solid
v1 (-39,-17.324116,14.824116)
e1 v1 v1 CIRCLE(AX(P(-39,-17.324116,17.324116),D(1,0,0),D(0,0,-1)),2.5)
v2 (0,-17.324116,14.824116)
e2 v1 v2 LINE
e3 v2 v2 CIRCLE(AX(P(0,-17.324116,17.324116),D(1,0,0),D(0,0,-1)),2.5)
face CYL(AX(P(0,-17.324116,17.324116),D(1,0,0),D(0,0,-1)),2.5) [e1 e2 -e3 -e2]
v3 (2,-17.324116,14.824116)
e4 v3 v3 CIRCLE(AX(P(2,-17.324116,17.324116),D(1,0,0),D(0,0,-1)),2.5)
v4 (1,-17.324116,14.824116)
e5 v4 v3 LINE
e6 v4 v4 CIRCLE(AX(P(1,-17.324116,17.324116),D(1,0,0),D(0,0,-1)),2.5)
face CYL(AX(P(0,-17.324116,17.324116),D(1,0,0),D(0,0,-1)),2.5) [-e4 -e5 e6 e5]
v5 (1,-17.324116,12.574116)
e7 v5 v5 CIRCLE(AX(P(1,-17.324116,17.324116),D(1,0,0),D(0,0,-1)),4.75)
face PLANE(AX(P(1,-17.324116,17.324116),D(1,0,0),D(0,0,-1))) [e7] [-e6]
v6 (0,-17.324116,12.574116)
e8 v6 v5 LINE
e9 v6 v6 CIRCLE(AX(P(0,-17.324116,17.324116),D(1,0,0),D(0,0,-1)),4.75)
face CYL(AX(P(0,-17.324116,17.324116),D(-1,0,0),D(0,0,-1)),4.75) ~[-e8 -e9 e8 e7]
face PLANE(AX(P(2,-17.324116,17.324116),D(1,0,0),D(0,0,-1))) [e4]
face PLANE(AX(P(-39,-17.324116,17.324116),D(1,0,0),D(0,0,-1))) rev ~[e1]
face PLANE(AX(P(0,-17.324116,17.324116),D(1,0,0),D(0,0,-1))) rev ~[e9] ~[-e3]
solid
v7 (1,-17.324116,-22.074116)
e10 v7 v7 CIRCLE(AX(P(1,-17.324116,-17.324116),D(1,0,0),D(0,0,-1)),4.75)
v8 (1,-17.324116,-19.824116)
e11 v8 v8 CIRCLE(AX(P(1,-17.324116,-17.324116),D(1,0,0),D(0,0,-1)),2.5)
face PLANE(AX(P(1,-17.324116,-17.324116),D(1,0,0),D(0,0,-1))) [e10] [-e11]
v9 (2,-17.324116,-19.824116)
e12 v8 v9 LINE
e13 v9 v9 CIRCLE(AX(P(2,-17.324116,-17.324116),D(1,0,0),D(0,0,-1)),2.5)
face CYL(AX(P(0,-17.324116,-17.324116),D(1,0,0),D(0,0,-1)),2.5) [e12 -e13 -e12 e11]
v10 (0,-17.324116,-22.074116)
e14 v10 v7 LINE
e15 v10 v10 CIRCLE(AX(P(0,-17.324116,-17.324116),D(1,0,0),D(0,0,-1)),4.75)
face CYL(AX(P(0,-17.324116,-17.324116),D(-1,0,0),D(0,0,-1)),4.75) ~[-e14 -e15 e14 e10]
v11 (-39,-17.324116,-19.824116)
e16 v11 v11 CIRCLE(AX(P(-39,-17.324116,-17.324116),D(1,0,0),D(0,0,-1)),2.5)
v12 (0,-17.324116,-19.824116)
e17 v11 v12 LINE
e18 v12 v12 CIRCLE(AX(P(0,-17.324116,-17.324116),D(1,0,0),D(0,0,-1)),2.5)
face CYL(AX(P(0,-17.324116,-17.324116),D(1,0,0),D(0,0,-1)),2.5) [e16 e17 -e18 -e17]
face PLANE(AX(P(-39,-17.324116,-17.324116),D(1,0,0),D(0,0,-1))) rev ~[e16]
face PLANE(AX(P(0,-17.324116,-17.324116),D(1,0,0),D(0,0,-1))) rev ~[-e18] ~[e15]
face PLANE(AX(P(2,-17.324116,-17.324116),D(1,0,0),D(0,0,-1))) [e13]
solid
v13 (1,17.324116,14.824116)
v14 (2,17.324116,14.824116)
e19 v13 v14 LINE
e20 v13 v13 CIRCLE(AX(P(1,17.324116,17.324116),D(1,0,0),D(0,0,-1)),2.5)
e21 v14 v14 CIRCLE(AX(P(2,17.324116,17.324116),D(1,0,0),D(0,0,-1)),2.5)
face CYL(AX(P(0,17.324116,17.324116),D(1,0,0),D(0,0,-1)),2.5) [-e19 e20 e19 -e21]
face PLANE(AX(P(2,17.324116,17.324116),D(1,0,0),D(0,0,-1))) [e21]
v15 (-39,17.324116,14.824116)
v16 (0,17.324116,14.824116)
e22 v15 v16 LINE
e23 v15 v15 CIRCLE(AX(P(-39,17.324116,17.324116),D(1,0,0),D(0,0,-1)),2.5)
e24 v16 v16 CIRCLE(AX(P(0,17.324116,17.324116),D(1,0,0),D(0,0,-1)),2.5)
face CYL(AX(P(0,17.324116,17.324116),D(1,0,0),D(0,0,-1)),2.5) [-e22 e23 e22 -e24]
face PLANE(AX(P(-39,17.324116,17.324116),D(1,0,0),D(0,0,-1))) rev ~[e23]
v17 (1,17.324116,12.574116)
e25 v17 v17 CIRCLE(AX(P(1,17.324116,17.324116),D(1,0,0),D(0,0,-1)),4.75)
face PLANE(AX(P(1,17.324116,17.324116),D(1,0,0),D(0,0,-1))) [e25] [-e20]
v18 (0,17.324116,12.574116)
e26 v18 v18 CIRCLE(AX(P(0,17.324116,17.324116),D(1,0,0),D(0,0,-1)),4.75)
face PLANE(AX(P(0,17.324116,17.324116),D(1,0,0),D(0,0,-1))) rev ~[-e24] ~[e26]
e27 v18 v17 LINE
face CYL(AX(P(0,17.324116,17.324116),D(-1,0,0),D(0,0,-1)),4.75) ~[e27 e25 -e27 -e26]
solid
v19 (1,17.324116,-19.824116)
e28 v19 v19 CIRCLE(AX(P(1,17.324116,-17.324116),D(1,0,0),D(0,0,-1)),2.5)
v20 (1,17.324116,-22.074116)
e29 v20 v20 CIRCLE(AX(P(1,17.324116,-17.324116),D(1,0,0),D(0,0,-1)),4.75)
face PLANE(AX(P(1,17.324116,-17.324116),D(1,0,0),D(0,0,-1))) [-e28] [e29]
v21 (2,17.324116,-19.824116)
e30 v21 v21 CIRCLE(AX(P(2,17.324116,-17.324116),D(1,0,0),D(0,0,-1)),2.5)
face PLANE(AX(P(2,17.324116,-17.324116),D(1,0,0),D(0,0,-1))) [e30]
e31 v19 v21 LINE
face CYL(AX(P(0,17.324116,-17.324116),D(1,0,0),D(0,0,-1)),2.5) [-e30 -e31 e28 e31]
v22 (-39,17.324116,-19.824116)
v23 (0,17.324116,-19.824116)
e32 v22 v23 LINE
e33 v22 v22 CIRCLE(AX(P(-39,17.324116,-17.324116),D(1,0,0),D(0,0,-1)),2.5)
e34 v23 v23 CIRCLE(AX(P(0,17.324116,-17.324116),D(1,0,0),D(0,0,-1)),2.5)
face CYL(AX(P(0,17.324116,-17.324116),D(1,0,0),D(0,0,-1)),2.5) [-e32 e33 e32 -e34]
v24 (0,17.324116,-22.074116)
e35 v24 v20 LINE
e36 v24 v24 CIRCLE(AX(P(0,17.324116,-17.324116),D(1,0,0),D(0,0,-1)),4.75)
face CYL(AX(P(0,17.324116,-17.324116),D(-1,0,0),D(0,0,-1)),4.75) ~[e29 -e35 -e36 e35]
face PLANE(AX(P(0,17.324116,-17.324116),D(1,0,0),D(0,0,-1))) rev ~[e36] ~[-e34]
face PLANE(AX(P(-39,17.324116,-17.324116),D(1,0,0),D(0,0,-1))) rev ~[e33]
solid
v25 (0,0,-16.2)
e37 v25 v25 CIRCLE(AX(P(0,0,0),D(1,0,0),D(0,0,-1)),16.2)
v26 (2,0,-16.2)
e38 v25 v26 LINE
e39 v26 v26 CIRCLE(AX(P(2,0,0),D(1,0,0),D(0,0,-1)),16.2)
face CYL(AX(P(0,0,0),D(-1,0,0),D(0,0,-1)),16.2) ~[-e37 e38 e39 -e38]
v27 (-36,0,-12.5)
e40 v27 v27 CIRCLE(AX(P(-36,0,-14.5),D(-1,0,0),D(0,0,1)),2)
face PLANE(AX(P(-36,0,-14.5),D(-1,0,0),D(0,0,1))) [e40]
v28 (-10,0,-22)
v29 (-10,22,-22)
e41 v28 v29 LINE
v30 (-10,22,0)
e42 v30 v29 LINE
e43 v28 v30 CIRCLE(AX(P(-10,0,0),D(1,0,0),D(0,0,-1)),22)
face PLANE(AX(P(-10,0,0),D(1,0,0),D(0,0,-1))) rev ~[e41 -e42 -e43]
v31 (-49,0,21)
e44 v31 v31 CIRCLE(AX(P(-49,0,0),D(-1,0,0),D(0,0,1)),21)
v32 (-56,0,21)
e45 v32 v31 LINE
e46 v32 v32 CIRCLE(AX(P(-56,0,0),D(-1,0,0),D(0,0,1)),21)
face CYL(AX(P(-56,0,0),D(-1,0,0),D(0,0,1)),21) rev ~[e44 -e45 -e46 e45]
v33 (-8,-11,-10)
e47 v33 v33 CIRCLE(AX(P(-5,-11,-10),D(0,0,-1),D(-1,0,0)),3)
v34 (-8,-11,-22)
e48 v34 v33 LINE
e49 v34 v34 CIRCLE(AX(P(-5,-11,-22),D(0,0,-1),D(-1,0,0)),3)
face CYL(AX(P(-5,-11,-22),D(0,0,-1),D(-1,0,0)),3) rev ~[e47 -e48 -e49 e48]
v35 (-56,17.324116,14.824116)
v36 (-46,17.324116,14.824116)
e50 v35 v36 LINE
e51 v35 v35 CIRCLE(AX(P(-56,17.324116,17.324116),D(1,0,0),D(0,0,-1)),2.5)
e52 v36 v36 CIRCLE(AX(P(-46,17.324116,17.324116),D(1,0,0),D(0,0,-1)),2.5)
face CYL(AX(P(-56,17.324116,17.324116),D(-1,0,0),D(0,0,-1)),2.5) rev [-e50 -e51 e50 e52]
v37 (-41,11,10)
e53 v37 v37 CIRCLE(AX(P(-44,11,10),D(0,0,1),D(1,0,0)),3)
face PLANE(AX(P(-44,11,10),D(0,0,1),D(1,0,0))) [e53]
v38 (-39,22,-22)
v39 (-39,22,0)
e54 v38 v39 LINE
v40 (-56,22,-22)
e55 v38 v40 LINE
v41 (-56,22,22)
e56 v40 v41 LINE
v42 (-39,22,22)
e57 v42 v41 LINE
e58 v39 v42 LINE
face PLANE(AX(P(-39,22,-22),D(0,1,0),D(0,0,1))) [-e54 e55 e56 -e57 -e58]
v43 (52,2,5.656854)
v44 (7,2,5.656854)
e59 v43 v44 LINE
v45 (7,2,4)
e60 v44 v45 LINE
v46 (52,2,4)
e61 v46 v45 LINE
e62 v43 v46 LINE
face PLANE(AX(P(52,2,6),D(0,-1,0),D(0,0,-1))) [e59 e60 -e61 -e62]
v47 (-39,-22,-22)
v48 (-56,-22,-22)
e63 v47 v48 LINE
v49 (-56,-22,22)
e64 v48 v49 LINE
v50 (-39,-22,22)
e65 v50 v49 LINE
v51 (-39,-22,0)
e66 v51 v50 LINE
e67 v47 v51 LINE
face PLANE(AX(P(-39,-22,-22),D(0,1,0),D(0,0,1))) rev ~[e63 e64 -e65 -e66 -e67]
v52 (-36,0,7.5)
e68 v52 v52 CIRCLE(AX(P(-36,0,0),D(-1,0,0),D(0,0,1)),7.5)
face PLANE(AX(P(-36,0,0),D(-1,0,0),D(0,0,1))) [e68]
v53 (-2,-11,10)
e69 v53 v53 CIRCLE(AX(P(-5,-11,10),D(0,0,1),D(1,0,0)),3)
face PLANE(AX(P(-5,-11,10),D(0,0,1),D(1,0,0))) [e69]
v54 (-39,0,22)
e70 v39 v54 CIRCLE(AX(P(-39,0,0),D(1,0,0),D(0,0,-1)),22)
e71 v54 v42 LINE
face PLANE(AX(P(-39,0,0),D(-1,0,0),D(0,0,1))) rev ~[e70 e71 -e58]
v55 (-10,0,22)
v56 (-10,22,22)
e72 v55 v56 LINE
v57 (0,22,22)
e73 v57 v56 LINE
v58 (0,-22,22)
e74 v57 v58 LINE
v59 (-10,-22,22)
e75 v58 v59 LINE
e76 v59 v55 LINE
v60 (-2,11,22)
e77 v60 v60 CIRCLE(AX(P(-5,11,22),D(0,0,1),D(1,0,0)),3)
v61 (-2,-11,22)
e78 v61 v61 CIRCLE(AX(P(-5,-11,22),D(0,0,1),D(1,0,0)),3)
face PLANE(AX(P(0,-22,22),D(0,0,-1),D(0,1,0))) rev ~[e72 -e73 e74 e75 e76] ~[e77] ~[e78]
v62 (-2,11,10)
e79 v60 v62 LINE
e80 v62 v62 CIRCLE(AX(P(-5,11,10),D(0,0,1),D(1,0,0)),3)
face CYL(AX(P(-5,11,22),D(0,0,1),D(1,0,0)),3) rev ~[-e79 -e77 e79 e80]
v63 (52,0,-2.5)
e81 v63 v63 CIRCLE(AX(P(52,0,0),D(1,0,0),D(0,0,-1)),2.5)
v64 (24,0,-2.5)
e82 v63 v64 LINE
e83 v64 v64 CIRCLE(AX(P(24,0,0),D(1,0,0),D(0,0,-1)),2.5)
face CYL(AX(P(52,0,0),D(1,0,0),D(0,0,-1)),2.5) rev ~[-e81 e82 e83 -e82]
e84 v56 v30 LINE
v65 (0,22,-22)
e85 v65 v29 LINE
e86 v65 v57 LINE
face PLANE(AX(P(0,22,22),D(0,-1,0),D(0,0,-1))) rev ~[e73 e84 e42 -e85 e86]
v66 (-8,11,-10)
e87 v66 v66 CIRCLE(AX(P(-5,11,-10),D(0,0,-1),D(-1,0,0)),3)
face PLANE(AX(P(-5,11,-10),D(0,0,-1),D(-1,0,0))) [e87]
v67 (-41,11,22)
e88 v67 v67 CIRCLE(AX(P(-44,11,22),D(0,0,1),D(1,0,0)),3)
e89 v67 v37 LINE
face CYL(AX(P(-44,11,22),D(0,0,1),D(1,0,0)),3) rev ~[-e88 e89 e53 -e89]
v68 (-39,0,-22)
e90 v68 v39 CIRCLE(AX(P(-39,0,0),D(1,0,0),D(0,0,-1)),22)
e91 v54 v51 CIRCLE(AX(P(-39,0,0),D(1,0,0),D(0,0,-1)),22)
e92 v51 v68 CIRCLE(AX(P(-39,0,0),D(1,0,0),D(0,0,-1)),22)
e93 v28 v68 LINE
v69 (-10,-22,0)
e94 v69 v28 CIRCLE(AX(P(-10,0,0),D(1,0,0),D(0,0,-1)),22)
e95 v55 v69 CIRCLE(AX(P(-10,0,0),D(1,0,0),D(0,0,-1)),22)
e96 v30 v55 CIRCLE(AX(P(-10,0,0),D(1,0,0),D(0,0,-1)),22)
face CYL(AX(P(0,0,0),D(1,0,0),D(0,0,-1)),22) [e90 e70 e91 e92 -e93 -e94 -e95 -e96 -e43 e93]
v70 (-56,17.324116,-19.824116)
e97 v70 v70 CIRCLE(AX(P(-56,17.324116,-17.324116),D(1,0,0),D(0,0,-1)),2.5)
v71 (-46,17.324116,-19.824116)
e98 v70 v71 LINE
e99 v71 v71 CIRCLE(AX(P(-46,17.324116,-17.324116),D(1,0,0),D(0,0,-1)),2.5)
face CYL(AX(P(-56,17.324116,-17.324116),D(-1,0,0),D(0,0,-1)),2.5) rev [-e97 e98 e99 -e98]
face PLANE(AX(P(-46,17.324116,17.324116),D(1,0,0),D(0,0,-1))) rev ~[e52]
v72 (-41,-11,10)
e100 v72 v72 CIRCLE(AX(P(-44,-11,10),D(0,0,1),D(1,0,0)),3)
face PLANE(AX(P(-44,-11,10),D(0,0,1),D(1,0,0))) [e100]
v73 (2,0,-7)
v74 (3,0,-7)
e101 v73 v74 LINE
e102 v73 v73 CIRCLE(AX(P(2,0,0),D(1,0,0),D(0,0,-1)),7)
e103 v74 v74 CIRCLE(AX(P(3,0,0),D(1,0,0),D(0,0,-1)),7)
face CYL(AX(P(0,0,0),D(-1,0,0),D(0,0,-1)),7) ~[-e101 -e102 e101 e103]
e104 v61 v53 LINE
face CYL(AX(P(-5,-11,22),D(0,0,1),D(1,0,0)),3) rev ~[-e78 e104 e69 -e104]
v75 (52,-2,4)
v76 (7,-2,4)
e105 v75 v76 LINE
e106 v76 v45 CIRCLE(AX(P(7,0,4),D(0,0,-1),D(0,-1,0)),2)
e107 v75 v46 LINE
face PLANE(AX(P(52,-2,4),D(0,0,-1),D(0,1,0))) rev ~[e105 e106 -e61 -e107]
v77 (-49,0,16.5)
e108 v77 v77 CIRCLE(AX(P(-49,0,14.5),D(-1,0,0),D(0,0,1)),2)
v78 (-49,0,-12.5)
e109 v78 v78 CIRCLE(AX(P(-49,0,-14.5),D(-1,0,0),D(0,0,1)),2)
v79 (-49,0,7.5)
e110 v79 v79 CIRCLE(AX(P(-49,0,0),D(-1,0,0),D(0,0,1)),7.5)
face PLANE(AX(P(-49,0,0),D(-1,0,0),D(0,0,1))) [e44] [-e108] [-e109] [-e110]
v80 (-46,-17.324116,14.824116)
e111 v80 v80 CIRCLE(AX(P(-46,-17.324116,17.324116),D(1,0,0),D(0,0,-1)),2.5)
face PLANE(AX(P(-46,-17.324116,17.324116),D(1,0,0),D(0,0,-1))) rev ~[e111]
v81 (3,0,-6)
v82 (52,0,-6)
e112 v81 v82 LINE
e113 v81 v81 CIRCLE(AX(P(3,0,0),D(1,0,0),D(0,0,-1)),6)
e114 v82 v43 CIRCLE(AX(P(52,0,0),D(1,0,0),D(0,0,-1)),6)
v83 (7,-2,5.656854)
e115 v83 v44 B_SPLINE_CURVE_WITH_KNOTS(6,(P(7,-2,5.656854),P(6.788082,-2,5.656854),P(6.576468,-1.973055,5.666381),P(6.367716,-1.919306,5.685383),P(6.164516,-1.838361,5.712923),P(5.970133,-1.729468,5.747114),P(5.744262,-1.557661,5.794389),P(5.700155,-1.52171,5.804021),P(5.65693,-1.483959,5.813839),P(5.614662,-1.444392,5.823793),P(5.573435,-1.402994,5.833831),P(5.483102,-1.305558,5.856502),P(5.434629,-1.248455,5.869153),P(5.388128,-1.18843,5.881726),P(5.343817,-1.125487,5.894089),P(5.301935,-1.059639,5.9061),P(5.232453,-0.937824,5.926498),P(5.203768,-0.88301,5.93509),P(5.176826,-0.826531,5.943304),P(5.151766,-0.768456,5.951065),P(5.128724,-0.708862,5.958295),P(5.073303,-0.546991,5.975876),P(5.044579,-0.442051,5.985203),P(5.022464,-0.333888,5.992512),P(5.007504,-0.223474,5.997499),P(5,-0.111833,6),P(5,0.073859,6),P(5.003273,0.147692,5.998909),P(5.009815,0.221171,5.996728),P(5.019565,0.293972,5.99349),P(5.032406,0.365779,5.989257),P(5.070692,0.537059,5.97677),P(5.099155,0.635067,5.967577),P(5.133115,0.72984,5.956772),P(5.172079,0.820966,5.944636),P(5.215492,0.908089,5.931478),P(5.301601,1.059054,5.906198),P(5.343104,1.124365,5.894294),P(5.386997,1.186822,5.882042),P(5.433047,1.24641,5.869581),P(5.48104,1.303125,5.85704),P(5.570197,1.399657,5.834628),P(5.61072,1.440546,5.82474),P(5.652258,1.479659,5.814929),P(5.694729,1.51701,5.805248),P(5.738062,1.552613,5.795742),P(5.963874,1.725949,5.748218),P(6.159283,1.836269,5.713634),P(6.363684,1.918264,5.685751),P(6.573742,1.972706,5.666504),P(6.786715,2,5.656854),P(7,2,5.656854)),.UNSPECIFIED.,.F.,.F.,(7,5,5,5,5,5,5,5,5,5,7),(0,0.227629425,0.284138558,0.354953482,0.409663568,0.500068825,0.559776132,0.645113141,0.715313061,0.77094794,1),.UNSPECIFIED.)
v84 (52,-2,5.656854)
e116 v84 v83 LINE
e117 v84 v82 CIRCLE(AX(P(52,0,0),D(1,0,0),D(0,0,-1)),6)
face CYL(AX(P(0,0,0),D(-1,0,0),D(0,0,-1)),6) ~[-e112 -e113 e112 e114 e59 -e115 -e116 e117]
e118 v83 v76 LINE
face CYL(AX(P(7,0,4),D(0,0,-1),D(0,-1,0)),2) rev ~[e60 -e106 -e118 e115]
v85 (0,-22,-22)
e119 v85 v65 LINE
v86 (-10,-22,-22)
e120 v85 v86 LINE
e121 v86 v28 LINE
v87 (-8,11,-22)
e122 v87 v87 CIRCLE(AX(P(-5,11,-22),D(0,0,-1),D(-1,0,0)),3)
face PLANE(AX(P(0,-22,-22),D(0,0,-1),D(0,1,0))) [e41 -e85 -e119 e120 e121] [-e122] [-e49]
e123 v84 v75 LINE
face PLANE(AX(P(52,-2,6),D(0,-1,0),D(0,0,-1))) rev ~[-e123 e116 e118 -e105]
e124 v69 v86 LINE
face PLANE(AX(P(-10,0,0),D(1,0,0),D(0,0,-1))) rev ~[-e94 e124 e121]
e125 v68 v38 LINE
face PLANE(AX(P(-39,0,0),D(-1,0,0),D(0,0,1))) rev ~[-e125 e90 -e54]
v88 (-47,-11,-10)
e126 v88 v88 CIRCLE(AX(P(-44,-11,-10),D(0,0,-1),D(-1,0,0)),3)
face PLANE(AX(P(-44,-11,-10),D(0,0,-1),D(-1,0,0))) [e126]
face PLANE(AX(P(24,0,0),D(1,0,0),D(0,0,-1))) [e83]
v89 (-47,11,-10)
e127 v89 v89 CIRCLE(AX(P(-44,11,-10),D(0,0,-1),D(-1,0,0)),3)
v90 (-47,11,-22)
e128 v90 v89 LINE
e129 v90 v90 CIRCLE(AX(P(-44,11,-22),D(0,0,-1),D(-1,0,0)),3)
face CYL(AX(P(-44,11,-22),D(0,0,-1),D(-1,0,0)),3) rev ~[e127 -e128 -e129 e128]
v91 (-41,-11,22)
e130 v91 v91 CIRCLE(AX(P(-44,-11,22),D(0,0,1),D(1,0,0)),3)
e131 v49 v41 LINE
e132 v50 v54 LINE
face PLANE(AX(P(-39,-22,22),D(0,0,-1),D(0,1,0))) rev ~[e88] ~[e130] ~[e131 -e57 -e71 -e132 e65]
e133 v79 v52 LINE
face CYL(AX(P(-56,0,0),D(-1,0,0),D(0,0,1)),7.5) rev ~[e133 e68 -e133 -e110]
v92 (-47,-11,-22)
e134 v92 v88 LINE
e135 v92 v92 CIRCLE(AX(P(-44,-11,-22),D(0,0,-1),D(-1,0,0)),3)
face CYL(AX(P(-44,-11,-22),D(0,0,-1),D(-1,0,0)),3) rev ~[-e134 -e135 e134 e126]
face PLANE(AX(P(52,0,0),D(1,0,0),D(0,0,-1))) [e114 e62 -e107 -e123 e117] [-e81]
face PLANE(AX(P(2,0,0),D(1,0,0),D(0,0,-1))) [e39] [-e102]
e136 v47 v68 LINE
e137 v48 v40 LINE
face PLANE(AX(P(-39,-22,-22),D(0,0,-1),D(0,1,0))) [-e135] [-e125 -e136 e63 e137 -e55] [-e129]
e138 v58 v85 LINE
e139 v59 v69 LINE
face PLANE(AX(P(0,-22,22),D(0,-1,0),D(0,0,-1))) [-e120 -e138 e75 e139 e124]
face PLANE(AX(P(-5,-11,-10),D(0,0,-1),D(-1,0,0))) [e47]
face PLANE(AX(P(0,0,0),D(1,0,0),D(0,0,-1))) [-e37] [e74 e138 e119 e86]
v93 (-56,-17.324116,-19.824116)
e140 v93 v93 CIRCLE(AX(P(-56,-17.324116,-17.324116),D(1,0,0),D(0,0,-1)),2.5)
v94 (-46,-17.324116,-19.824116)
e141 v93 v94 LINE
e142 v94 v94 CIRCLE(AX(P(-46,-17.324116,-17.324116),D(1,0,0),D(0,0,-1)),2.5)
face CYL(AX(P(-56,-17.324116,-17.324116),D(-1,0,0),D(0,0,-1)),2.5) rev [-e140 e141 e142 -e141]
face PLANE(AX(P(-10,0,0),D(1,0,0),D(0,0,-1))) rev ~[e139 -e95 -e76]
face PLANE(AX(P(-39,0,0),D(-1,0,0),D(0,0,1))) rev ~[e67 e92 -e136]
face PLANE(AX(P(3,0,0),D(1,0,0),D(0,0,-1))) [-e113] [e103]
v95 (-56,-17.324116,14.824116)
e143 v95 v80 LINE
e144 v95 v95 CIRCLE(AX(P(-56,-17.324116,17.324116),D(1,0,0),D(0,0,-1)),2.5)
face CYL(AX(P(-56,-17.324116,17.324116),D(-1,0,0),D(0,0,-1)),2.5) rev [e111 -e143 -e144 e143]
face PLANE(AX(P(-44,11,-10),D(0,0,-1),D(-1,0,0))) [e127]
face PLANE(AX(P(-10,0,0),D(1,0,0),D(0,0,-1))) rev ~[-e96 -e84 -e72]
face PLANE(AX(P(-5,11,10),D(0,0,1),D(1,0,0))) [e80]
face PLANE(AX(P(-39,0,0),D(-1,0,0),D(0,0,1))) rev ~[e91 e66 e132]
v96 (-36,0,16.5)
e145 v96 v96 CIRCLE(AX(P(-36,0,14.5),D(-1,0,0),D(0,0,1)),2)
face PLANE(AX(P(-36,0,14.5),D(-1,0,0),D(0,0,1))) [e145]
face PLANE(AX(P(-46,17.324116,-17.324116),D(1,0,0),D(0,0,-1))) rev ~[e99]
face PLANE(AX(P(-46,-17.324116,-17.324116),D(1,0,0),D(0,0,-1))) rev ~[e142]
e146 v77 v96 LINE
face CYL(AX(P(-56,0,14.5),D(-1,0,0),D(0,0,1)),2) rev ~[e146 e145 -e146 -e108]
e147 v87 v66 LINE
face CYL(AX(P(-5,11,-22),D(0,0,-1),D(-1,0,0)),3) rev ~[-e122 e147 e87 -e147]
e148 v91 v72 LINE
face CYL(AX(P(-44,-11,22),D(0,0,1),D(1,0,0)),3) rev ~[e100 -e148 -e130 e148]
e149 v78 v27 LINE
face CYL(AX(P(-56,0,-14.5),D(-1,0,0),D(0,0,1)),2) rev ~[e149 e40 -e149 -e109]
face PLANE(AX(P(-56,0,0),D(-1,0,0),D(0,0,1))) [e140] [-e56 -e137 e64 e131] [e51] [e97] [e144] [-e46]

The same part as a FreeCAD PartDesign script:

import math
import FreeCAD as App
import Part
import Sketcher

V = App.Vector
Q = App.Units.Quantity

doc = App.newDocument("Part")
body = doc.addObject("PartDesign::Body", "Body")

# Sketch on YZ plane
sketch1 = body.newObject("Sketcher::SketchObject", "Sketch")
sketch1.AttachmentSupport = (doc.getObject("YZ_Plane"), [""])
sketch1.MapMode = "FlatFace"
sketch1.addGeometry([
    Part.LineSegment(V(22, 22, 0), V(-22, 22, 0)),
    Part.LineSegment(V(-22, 22, 0), V(-22, -22, 0)),
    Part.LineSegment(V(-22, -22, 0), V(22, -22, 0)),
    Part.LineSegment(V(22, -22, 0), V(22, 22, 0)),
], False)
sketch1.addConstraint([
    Sketcher.Constraint("Coincident", 0, 2, 1, 1),
    Sketcher.Constraint("Coincident", 1, 2, 2, 1),
    Sketcher.Constraint("Coincident", 2, 2, 3, 1),
    Sketcher.Constraint("Coincident", 3, 2, 0, 1),
    Sketcher.Constraint("Horizontal", 0),
    Sketcher.Constraint("Vertical", 1),
    Sketcher.Constraint("Horizontal", 2),
    Sketcher.Constraint("Vertical", 3),
    Sketcher.Constraint("Symmetric", 0, 2, 2, 2, -1, 1),
    Sketcher.Constraint("Equal", 2, 1),
    Sketcher.Constraint("DistanceX", 0, 2, 0, 1, Q("44 mm")),
])
pad1 = body.newObject("PartDesign::Pad", "Pad")
pad1.Profile = sketch1
pad1.Length = 10
pad1.Reversed = True

# Sketch on YZ plane
sketch2 = body.newObject("Sketcher::SketchObject", "Sketch001")
sketch2.AttachmentSupport = (doc.getObject("YZ_Plane"), [""])
sketch2.MapMode = "FlatFace"
sketch2.addGeometry(Part.Circle(V(0, 0, 0), V(0, 0, 1), 22), False)
sketch2.addConstraint([
    Sketcher.Constraint("Coincident", 0, 3, -1, 1),
    Sketcher.Constraint("Diameter", 0, Q("44 mm")),
])
pad2 = body.newObject("PartDesign::Pad", "Pad001")
pad2.Profile = sketch2
pad2.Length = 39
pad2.Reversed = True

# Sketch on YZ plane
sketch3 = body.newObject("Sketcher::SketchObject", "Sketch002")
sketch3.AttachmentSupport = (doc.getObject("YZ_Plane"), [""])
sketch3.MapMode = "FlatFace"
sketch3.addGeometry(Part.Circle(V(0, 0, 0), V(0, 0, 1), 6), False)
sketch3.addConstraint([
    Sketcher.Constraint("Coincident", 0, 3, -1, 1),
    Sketcher.Constraint("Diameter", 0, Q("12 mm")),
])
pad3 = body.newObject("PartDesign::Pad", "Pad002")
pad3.Profile = sketch3
pad3.Length = 52

# Sketch on YZ plane
sketch4 = body.newObject("Sketcher::SketchObject", "Sketch003")
sketch4.AttachmentSupport = (doc.getObject("YZ_Plane"), [""])
sketch4.MapMode = "FlatFace"
sketch4.addGeometry([
    Part.Circle(V(0, 0, 0), V(0, 0, 1), 7),
    Part.Circle(V(0, 0, 0), V(0, 0, 1), 6),
], False)
sketch4.addConstraint([
    Sketcher.Constraint("Coincident", 0, 3, -1, 1),
    Sketcher.Constraint("Coincident", 1, 3, -1, 1),
    Sketcher.Constraint("Diameter", 0, Q("14 mm")),
    Sketcher.Constraint("Diameter", 1, Q("12 mm")),
])
pad4 = body.newObject("PartDesign::Pad", "Pad003")
pad4.Profile = sketch4
pad4.Length = 3

# Sketch on YZ plane
sketch5 = body.newObject("Sketcher::SketchObject", "Sketch004")
sketch5.AttachmentSupport = (doc.getObject("YZ_Plane"), [""])
sketch5.MapMode = "FlatFace"
sketch5.addGeometry([
    Part.Circle(V(0, 0, 0), V(0, 0, 1), 16),
    Part.Circle(V(0, 0, 0), V(0, 0, 1), 7),
], False)
sketch5.addConstraint([
    Sketcher.Constraint("Coincident", 0, 3, -1, 1),
    Sketcher.Constraint("Coincident", 1, 3, -1, 1),
    Sketcher.Constraint("Diameter", 1, Q("14 mm")),
    Sketcher.Constraint("Diameter", 0, Q("32.4 mm")),
])
pad5 = body.newObject("PartDesign::Pad", "Pad004")
pad5.Profile = sketch5
pad5.Length = 2

# Sketch on YZ plane
sketch6 = body.newObject("Sketcher::SketchObject", "Sketch005")
sketch6.AttachmentSupport = (doc.getObject("YZ_Plane"), [""])
sketch6.MapMode = "FlatFace"
sketch6.AttachmentOffset = App.Placement(V(0, 0, -39), App.Rotation())
sketch6.addGeometry([
    Part.LineSegment(V(22, -22, 0), V(-22, -22, 0)),
    Part.LineSegment(V(-22, -22, 0), V(-22, 22, 0)),
    Part.LineSegment(V(-22, 22, 0), V(22, 22, 0)),
    Part.LineSegment(V(22, 22, 0), V(22, -22, 0)),
], False)
sketch6.addConstraint([
    Sketcher.Constraint("Coincident", 0, 2, 1, 1),
    Sketcher.Constraint("Coincident", 1, 2, 2, 1),
    Sketcher.Constraint("Coincident", 2, 2, 3, 1),
    Sketcher.Constraint("Coincident", 3, 2, 0, 1),
    Sketcher.Constraint("Horizontal", 0),
    Sketcher.Constraint("Vertical", 1),
    Sketcher.Constraint("Horizontal", 2),
    Sketcher.Constraint("Vertical", 3),
    Sketcher.Constraint("Symmetric", 0, 2, 2, 2, -1, 1),
    Sketcher.Constraint("Equal", 2, 1),
    Sketcher.Constraint("DistanceX", 0, 2, 0, 1, Q("44 mm")),
])
pad6 = body.newObject("PartDesign::Pad", "Pad005")
pad6.Profile = sketch6
pad6.Length = 17
pad6.Reversed = True

# Sketch on XY plane
sketch7 = body.newObject("Sketcher::SketchObject", "Sketch006")
sketch7.AttachmentSupport = (doc.getObject("XY_Plane"), [""])
sketch7.MapMode = "FlatFace"
sketch7.AttachmentOffset = App.Placement(V(0, 0, 22), App.Rotation())
sketch7.addGeometry([
    Part.Circle(V(-44, 11, 0), V(0, 0, 1), 3),
    Part.Circle(V(-44, -11, 0), V(0, 0, 1), 3),
], False)
sketch7.addConstraint([
    Sketcher.Constraint("Equal", 0, 1),
    Sketcher.Constraint("Symmetric", 0, 3, 1, 3, -1),
    Sketcher.Constraint("Diameter", 0, Q("6 mm")),
    Sketcher.Constraint("DistanceX", 0, 3, -1, 1, Q("44 mm")),
    Sketcher.Constraint("DistanceY", -1, 1, 0, 3, Q("11 mm")),
])
pocket1 = body.newObject("PartDesign::Pocket", "Pocket")
pocket1.Profile = sketch7
pocket1.Length = 12

# Sketch on XY plane
sketch8 = body.newObject("Sketcher::SketchObject", "Sketch007")
sketch8.AttachmentSupport = (doc.getObject("XY_Plane"), [""])
sketch8.MapMode = "FlatFace"
sketch8.AttachmentOffset = App.Placement(V(0, 0, 22), App.Rotation())
sketch8.addGeometry([
    Part.Circle(V(-5, 11, 0), V(0, 0, 1), 3),
    Part.Circle(V(-5, -11, 0), V(0, 0, 1), 3),
], False)
sketch8.addConstraint([
    Sketcher.Constraint("Equal", 0, 1),
    Sketcher.Constraint("Symmetric", 0, 3, 1, 3, -1),
    Sketcher.Constraint("Diameter", 0, Q("6 mm")),
    Sketcher.Constraint("DistanceX", 0, 3, -1, 1, Q("5 mm")),
    Sketcher.Constraint("DistanceY", -1, 1, 0, 3, Q("11 mm")),
])
pocket2 = body.newObject("PartDesign::Pocket", "Pocket001")
pocket2.Profile = sketch8
pocket2.Length = 12

# Sketch on YZ plane
sketch9 = body.newObject("Sketcher::SketchObject", "Sketch008")
sketch9.AttachmentSupport = (doc.getObject("YZ_Plane"), [""])
sketch9.MapMode = "FlatFace"
sketch9.AttachmentOffset = App.Placement(V(0, 0, 52), App.Rotation())
sketch9.addGeometry([
    Part.LineSegment(V(2, 6, 0), V(-2, 6, 0)),
    Part.LineSegment(V(-2, 6, 0), V(-2, 4, 0)),
    Part.LineSegment(V(-2, 4, 0), V(2, 4, 0)),
    Part.LineSegment(V(2, 4, 0), V(2, 6, 0)),
], False)
sketch9.addConstraint([
    Sketcher.Constraint("Coincident", 0, 2, 1, 1),
    Sketcher.Constraint("Coincident", 1, 2, 2, 1),
    Sketcher.Constraint("Coincident", 2, 2, 3, 1),
    Sketcher.Constraint("Coincident", 3, 2, 0, 1),
    Sketcher.Constraint("Horizontal", 0),
    Sketcher.Constraint("Vertical", 1),
    Sketcher.Constraint("Horizontal", 2),
    Sketcher.Constraint("Vertical", 3),
    Sketcher.Constraint("DistanceX", 0, 2, 0, 1, Q("4 mm")),
    Sketcher.Constraint("DistanceY", 1, 2, 1, 1, Q("2 mm")),
    Sketcher.Constraint("DistanceX", 0, 2, -1, 1, Q("2 mm")),
    Sketcher.Constraint("DistanceY", -1, 1, 0, 2, Q("6 mm")),
])
pocket3 = body.newObject("PartDesign::Pocket", "Pocket002")
pocket3.Profile = sketch9
pocket3.Length = 45

# Sketch on YZ plane
sketch10 = body.newObject("Sketcher::SketchObject", "Sketch009")
sketch10.AttachmentSupport = (doc.getObject("YZ_Plane"), [""])
sketch10.MapMode = "FlatFace"
sketch10.AttachmentOffset = App.Placement(V(0, 0, 52), App.Rotation())
sketch10.addGeometry(Part.Circle(V(0, 0, 0), V(0, 0, 1), 2.5), False)
sketch10.addConstraint([
    Sketcher.Constraint("Coincident", 0, 3, -1, 1),
    Sketcher.Constraint("Diameter", 0, Q("5 mm")),
])
pocket4 = body.newObject("PartDesign::Pocket", "Pocket003")
pocket4.Profile = sketch10
pocket4.Length = 28

# Sketch on XY plane
sketch11 = body.newObject("Sketcher::SketchObject", "Sketch010")
sketch11.AttachmentSupport = (doc.getObject("XY_Plane"), [""])
sketch11.MapMode = "FlatFace"
sketch11.AttachmentOffset = App.Placement(V(0, 0, 4), App.Rotation())
sketch11.addGeometry([
    Part.LineSegment(V(7, -2, 0), V(7, 2, 0)),
    Part.ArcOfCircle(Part.Circle(V(7, 0, 0), V(0, 0, 1), 2), math.radians(90), math.radians(270)),
], False)
sketch11.addConstraint([
    Sketcher.Constraint("Coincident", 0, 1, 1, 2),
    Sketcher.Constraint("Coincident", 1, 1, 0, 2),
    Sketcher.Constraint("Vertical", 0),
    Sketcher.Constraint("PointOnObject", 1, 3, -1),
    Sketcher.Constraint("Vertical", 1, 3, 0, 1),
    Sketcher.Constraint("Radius", 1, Q("2 mm")),
    Sketcher.Constraint("DistanceX", -1, 1, 1, 3, Q("7 mm")),
])
pocket5 = body.newObject("PartDesign::Pocket", "Pocket004")
pocket5.Profile = sketch11
pocket5.Length = 28
pocket5.Reversed = True

# Sketch on XY plane
sketch12 = body.newObject("Sketcher::SketchObject", "Sketch011")
sketch12.AttachmentSupport = (doc.getObject("XY_Plane"), [""])
sketch12.MapMode = "FlatFace"
sketch12.AttachmentOffset = App.Placement(V(0, 0, -22), App.Rotation())
sketch12.addGeometry([
    Part.Circle(V(-5, 11, 0), V(0, 0, 1), 3),
    Part.Circle(V(-5, -11, 0), V(0, 0, 1), 3),
], False)
sketch12.addConstraint([
    Sketcher.Constraint("Equal", 0, 1),
    Sketcher.Constraint("Symmetric", 0, 3, 1, 3, -1),
    Sketcher.Constraint("Diameter", 0, Q("6 mm")),
    Sketcher.Constraint("DistanceX", 0, 3, -1, 1, Q("5 mm")),
    Sketcher.Constraint("DistanceY", -1, 1, 0, 3, Q("11 mm")),
])
pocket6 = body.newObject("PartDesign::Pocket", "Pocket005")
pocket6.Profile = sketch12
pocket6.Length = 12
pocket6.Reversed = True

# Sketch on XY plane
sketch13 = body.newObject("Sketcher::SketchObject", "Sketch012")
sketch13.AttachmentSupport = (doc.getObject("XY_Plane"), [""])
sketch13.MapMode = "FlatFace"
sketch13.AttachmentOffset = App.Placement(V(0, 0, -22), App.Rotation())
sketch13.addGeometry([
    Part.Circle(V(-44, 11, 0), V(0, 0, 1), 3),
    Part.Circle(V(-44, -11, 0), V(0, 0, 1), 3),
], False)
sketch13.addConstraint([
    Sketcher.Constraint("Equal", 0, 1),
    Sketcher.Constraint("Symmetric", 0, 3, 1, 3, -1),
    Sketcher.Constraint("Diameter", 0, Q("6 mm")),
    Sketcher.Constraint("DistanceX", 0, 3, -1, 1, Q("44 mm")),
    Sketcher.Constraint("DistanceY", -1, 1, 0, 3, Q("11 mm")),
])
pocket7 = body.newObject("PartDesign::Pocket", "Pocket006")
pocket7.Profile = sketch13
pocket7.Length = 12
pocket7.Reversed = True

# Sketch on YZ plane
sketch14 = body.newObject("Sketcher::SketchObject", "Sketch013")
sketch14.AttachmentSupport = (doc.getObject("YZ_Plane"), [""])
sketch14.MapMode = "FlatFace"
sketch14.AttachmentOffset = App.Placement(V(0, 0, -56), App.Rotation())
sketch14.addGeometry([
    Part.Circle(V(17.3, 17.3, 0), V(0, 0, 1), 2.5),
    Part.Circle(V(-17.3, 17.3, 0), V(0, 0, 1), 2.5),
    Part.Circle(V(17.3, -17.3, 0), V(0, 0, 1), 2.5),
    Part.Circle(V(-17.3, -17.3, 0), V(0, 0, 1), 2.5),
], False)
sketch14.addConstraint([
    Sketcher.Constraint("Equal", 0, 1),
    Sketcher.Constraint("Equal", 1, 2),
    Sketcher.Constraint("Equal", 2, 3),
    Sketcher.Constraint("Symmetric", 1, 3, 2, 3, -1, 1),
    Sketcher.Constraint("Symmetric", 0, 3, 3, 3, -1, 1),
    Sketcher.Constraint("Symmetric", 0, 3, 1, 3, -2),
    Sketcher.Constraint("Diameter", 0, Q("5 mm")),
    Sketcher.Constraint("DistanceX", -1, 1, 0, 3, Q("17.324116 mm")),
    Sketcher.Constraint("DistanceY", -1, 1, 0, 3, Q("17.324116 mm")),
])
pocket8 = body.newObject("PartDesign::Pocket", "Pocket007")
pocket8.Profile = sketch14
pocket8.Length = 10
pocket8.Reversed = True

# Sketch on YZ plane
sketch15 = body.newObject("Sketcher::SketchObject", "Sketch014")
sketch15.AttachmentSupport = (doc.getObject("YZ_Plane"), [""])
sketch15.MapMode = "FlatFace"
sketch15.AttachmentOffset = App.Placement(V(0, 0, -56), App.Rotation())
sketch15.addGeometry(Part.Circle(V(0, 0, 0), V(0, 0, 1), 21), False)
sketch15.addConstraint([
    Sketcher.Constraint("Coincident", 0, 3, -1, 1),
    Sketcher.Constraint("Diameter", 0, Q("42 mm")),
])
pocket9 = body.newObject("PartDesign::Pocket", "Pocket008")
pocket9.Profile = sketch15
pocket9.Length = 7
pocket9.Reversed = True

# Sketch on YZ plane
sketch16 = body.newObject("Sketcher::SketchObject", "Sketch015")
sketch16.AttachmentSupport = (doc.getObject("YZ_Plane"), [""])
sketch16.MapMode = "FlatFace"
sketch16.AttachmentOffset = App.Placement(V(0, 0, -56), App.Rotation())
sketch16.addGeometry([
    Part.Circle(V(0, 0, 0), V(0, 0, 1), 7.5),
    Part.Circle(V(0, -14.5, 0), V(0, 0, 1), 2),
    Part.Circle(V(0, 14.5, 0), V(0, 0, 1), 2),
], False)
sketch16.addConstraint([
    Sketcher.Constraint("Coincident", 0, 3, -1, 1),
    Sketcher.Constraint("Equal", 1, 2),
    Sketcher.Constraint("Symmetric", 1, 3, 2, 3, -1, 1),
    Sketcher.Constraint("PointOnObject", 1, 3, -2),
    Sketcher.Constraint("Diameter", 0, Q("15 mm")),
    Sketcher.Constraint("Diameter", 1, Q("4 mm")),
    Sketcher.Constraint("DistanceY", 1, 3, 2, 3, Q("29 mm")),
])
pocket10 = body.newObject("PartDesign::Pocket", "Pocket009")
pocket10.Profile = sketch16
pocket10.Length = 20
pocket10.Reversed = True
body2 = doc.addObject("PartDesign::Body", "Body001")

# Sketch on YZ plane
sketch17 = body2.newObject("Sketcher::SketchObject", "Sketch016")
sketch17.AttachmentSupport = (doc.getObject("YZ_Plane001"), [""])
sketch17.MapMode = "FlatFace"
sketch17.addGeometry(Part.Circle(V(17.3, 17.3, 0), V(0, 0, 1), 2.5), False)
sketch17.addConstraint([
    Sketcher.Constraint("Diameter", 0, Q("5 mm")),
    Sketcher.Constraint("DistanceX", -1, 1, 0, 3, Q("17.324116 mm")),
    Sketcher.Constraint("DistanceY", -1, 1, 0, 3, Q("17.324116 mm")),
])
pad7 = body2.newObject("PartDesign::Pad", "Pad006")
pad7.Profile = sketch17
pad7.Type = "TwoLengths"
pad7.Length = 2
pad7.Length2 = 39
body3 = doc.addObject("PartDesign::Body", "Body002")

# Sketch on YZ plane
sketch18 = body3.newObject("Sketcher::SketchObject", "Sketch017")
sketch18.AttachmentSupport = (doc.getObject("YZ_Plane002"), [""])
sketch18.MapMode = "FlatFace"
sketch18.addGeometry(Part.Circle(V(-17.3, -17.3, 0), V(0, 0, 1), 2.5), False)
sketch18.addConstraint([
    Sketcher.Constraint("Diameter", 0, Q("5 mm")),
    Sketcher.Constraint("DistanceX", 0, 3, -1, 1, Q("17.324116 mm")),
    Sketcher.Constraint("DistanceY", 0, 3, -1, 1, Q("17.324116 mm")),
])
pad8 = body3.newObject("PartDesign::Pad", "Pad007")
pad8.Profile = sketch18
pad8.Type = "TwoLengths"
pad8.Length = 2
pad8.Length2 = 39
body4 = doc.addObject("PartDesign::Body", "Body003")

# Sketch on YZ plane
sketch19 = body4.newObject("Sketcher::SketchObject", "Sketch018")
sketch19.AttachmentSupport = (doc.getObject("YZ_Plane003"), [""])
sketch19.MapMode = "FlatFace"
sketch19.addGeometry(Part.Circle(V(-17.3, 17.3, 0), V(0, 0, 1), 2.5), False)
sketch19.addConstraint([
    Sketcher.Constraint("Diameter", 0, Q("5 mm")),
    Sketcher.Constraint("DistanceX", 0, 3, -1, 1, Q("17.324116 mm")),
    Sketcher.Constraint("DistanceY", -1, 1, 0, 3, Q("17.324116 mm")),
])
pad9 = body4.newObject("PartDesign::Pad", "Pad008")
pad9.Profile = sketch19
pad9.Type = "TwoLengths"
pad9.Length = 2
pad9.Length2 = 39
body5 = doc.addObject("PartDesign::Body", "Body004")

# Sketch on YZ plane
sketch20 = body5.newObject("Sketcher::SketchObject", "Sketch019")
sketch20.AttachmentSupport = (doc.getObject("YZ_Plane004"), [""])
sketch20.MapMode = "FlatFace"
sketch20.addGeometry(Part.Circle(V(17.3, -17.3, 0), V(0, 0, 1), 2.5), False)
sketch20.addConstraint([
    Sketcher.Constraint("Diameter", 0, Q("5 mm")),
    Sketcher.Constraint("DistanceX", -1, 1, 0, 3, Q("17.324116 mm")),
    Sketcher.Constraint("DistanceY", 0, 3, -1, 1, Q("17.324116 mm")),
])
pad10 = body5.newObject("PartDesign::Pad", "Pad009")
pad10.Profile = sketch20
pad10.Type = "TwoLengths"
pad10.Length = 2
pad10.Length2 = 39
body2.AllowCompound = True
doc.recompute()

boolean = body2.newObject("PartDesign::Boolean", "Boolean")
boolean.Type = "Fuse"
boolean.addObjects([body3])
doc.recompute()

boolean2 = body2.newObject("PartDesign::Boolean", "Boolean001")
boolean2.Type = "Fuse"
boolean2.addObjects([body4])
doc.recompute()

boolean3 = body2.newObject("PartDesign::Boolean", "Boolean002")
boolean3.Type = "Fuse"
boolean3.addObjects([body5])

# Sketch on YZ plane
sketch21 = body2.newObject("Sketcher::SketchObject", "Sketch020")
sketch21.AttachmentSupport = (doc.getObject("YZ_Plane001"), [""])
sketch21.MapMode = "FlatFace"
sketch21.addGeometry([
    Part.Circle(V(17.3, 17.3, 0), V(0, 0, 1), 4.8),
    Part.Circle(V(17.3, -17.3, 0), V(0, 0, 1), 4.8),
    Part.Circle(V(-17.3, -17.3, 0), V(0, 0, 1), 4.8),
    Part.Circle(V(-17.3, 17.3, 0), V(0, 0, 1), 4.8),
], False)
sketch21.addConstraint([
    Sketcher.Constraint("Equal", 0, 1),
    Sketcher.Constraint("Equal", 1, 2),
    Sketcher.Constraint("Equal", 2, 3),
    Sketcher.Constraint("Symmetric", 0, 3, 2, 3, -1, 1),
    Sketcher.Constraint("Symmetric", 1, 3, 3, 3, -1, 1),
    Sketcher.Constraint("Symmetric", 1, 3, 2, 3, -2),
    Sketcher.Constraint("Diameter", 0, Q("9.5 mm")),
    Sketcher.Constraint("DistanceX", -1, 1, 0, 3, Q("17.324116 mm")),
    Sketcher.Constraint("DistanceY", -1, 1, 0, 3, Q("17.324116 mm")),
])
pad11 = body2.newObject("PartDesign::Pad", "Pad010")
pad11.Profile = sketch21
pad11.Length = 1

doc.recompute()
